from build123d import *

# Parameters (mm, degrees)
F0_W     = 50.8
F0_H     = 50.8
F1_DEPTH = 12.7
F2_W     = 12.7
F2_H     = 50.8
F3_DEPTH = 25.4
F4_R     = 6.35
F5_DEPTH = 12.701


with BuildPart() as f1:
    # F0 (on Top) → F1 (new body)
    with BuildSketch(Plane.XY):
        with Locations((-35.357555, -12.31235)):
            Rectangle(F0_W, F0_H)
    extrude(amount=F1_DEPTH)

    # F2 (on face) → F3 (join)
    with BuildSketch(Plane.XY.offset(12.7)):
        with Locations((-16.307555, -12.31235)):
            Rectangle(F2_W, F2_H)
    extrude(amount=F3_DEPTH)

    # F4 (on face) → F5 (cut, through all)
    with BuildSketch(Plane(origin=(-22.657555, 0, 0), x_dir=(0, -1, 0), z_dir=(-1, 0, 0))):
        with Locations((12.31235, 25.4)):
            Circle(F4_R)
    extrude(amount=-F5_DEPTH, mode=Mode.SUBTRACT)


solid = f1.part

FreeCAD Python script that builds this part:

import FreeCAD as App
import Part
import Sketcher
Q = App.Units.Quantity


def add_polygon(sketch, points):
    """Adds a closed chain of lines whose ends are joined by coincident constraints."""
    first, n = sketch.GeometryCount, len(points)
    for a, b in zip(points, points[1:] + points[:1]):
        sketch.addGeometry(Part.LineSegment(App.Vector(*a, 0), App.Vector(*b, 0)), False)
    for i in range(n):
        sketch.addConstraint(Sketcher.Constraint("Coincident", first + i, 2, first + (i + 1) % n, 1))

doc = App.newDocument("Part")
body = doc.addObject("PartDesign::Body", "Body")

# Sketch on XY plane
sketch1 = body.newObject("Sketcher::SketchObject", "Sketch")
sketch1.AttachmentSupport = (doc.getObject("XY_Plane"), [""])
sketch1.MapMode = "FlatFace"
add_polygon(sketch1, [(-61, 13), (-61, -38), (-10, -38), (-10, 13)])  # lines 0-3
sketch1.addConstraint([
    Sketcher.Constraint("Vertical", 0),
    Sketcher.Constraint("Horizontal", 1),
    Sketcher.Constraint("Vertical", 2),
    Sketcher.Constraint("Horizontal", 3),
    Sketcher.Constraint("Equal", 3, 0),
    Sketcher.Constraint("DistanceX", 1, 1, 1, 2, Q("2 in")),
    Sketcher.Constraint("DistanceY", 0, 2, -1, 1, 37.71235),
    Sketcher.Constraint("DistanceX", 0, 2, -1, 1, 60.757555),
])
pad1 = body.newObject("PartDesign::Pad", "Pad")
pad1.Profile = sketch1
pad1.Length = Q("0.5 in")

# Sketch on XY plane
sketch2 = body.newObject("Sketcher::SketchObject", "Sketch001")
sketch2.AttachmentSupport = (doc.getObject("XY_Plane"), [""])
sketch2.MapMode = "FlatFace"
sketch2.AttachmentOffset = App.Placement(App.Vector(0, 0, 0.5 * 25.4), App.Rotation())
add_polygon(sketch2, [(-23, 13), (-23, -38), (-10, -38), (-10, 13)])  # lines 0-3
sketch2.addConstraint([
    Sketcher.Constraint("Vertical", 0),
    Sketcher.Constraint("Horizontal", 1),
    Sketcher.Constraint("Vertical", 2),
    Sketcher.Constraint("Horizontal", 3),
    Sketcher.Constraint("DistanceY", 0, 2, 0, 1, Q("2 in")),
    Sketcher.Constraint("DistanceX", 1, 1, 1, 2, Q("0.5 in")),
    Sketcher.Constraint("DistanceY", 0, 2, -1, 1, 37.71235),
    Sketcher.Constraint("DistanceX", 0, 2, -1, 1, 22.657555),
])
pad2 = body.newObject("PartDesign::Pad", "Pad001")
pad2.Profile = sketch2
pad2.Length = Q("1 in")

# Sketch on YZ plane
sketch3 = body.newObject("Sketcher::SketchObject", "Sketch002")
sketch3.AttachmentSupport = (doc.getObject("YZ_Plane"), [""])
sketch3.MapMode = "FlatFace"
sketch3.AttachmentOffset = App.Placement(App.Vector(0, 0, -22.657555), App.Rotation())
sketch3.addGeometry(Part.Circle(App.Vector(-12, 25, 0), App.Vector(0, 0, 1), 6), False)
sketch3.addConstraint([
    Sketcher.Constraint("Diameter", 0, Q("0.5 in")),
    Sketcher.Constraint("DistanceY", -1, 1, 0, 3, Q("1 in")),
    Sketcher.Constraint("DistanceX", 0, 3, -1, 1, 12.31235),
])
pocket1 = body.newObject("PartDesign::Pocket", "Pocket")
pocket1.Profile = sketch3
pocket1.Type = "ThroughAll"
pocket1.Reversed = True

doc.recompute()
